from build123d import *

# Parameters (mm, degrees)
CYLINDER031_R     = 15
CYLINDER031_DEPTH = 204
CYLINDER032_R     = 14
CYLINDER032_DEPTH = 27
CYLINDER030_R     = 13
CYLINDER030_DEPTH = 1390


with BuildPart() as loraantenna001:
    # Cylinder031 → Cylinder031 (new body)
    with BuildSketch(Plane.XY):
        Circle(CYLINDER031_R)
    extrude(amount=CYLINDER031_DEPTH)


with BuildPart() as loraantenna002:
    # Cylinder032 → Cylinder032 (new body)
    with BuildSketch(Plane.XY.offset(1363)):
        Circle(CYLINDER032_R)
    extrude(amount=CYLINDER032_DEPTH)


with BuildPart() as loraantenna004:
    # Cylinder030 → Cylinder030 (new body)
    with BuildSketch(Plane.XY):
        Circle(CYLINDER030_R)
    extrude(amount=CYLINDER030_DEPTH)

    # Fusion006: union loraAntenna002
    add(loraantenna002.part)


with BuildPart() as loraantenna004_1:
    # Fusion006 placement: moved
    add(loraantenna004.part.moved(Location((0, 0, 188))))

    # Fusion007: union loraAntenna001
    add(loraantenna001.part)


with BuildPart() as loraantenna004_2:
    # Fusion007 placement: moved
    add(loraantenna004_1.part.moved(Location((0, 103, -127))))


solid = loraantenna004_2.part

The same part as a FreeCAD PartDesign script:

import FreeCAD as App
import Part
import Sketcher
Q = App.Units.Quantity

doc = App.newDocument("Part")
body = doc.addObject("PartDesign::Body", "Body")

sketch1 = body.newObject("Sketcher::SketchObject", "Sketch")
sketch1.AttachmentSupport = (doc.getObject("XY_Plane"), [""])
sketch1.MapMode = "FlatFace"
sketch1.addGeometry(Part.Circle(App.Vector(0, 0, 0), App.Vector(0, 0, 1), 15), False)
sketch1.addConstraint([
    Sketcher.Constraint("Coincident", 0, 3, -1, 1),
    Sketcher.Constraint("Diameter", 0, Q("30 mm")),
])
pad1 = body.newObject("PartDesign::Pad", "Pad")
pad1.Profile = sketch1
pad1.Length = 204
body2 = doc.addObject("PartDesign::Body", "Body001")

sketch2 = body2.newObject("Sketcher::SketchObject", "Sketch001")
sketch2.AttachmentSupport = (doc.getObject("XY_Plane001"), [""])
sketch2.MapMode = "FlatFace"
sketch2.AttachmentOffset = App.Placement(App.Vector(0, 0, 1363), App.Rotation())
sketch2.addGeometry(Part.Circle(App.Vector(0, 0, 0), App.Vector(0, 0, 1), 14), False)
sketch2.addConstraint([
    Sketcher.Constraint("Coincident", 0, 3, -1, 1),
    Sketcher.Constraint("Diameter", 0, Q("28 mm")),
])
pad2 = body2.newObject("PartDesign::Pad", "Pad001")
pad2.Profile = sketch2
pad2.Length = 27
body3 = doc.addObject("PartDesign::Body", "Body002")

sketch3 = body3.newObject("Sketcher::SketchObject", "Sketch002")
sketch3.AttachmentSupport = (doc.getObject("XY_Plane002"), [""])
sketch3.MapMode = "FlatFace"
sketch3.addGeometry(Part.Circle(App.Vector(0, 0, 0), App.Vector(0, 0, 1), 13), False)
sketch3.addConstraint([
    Sketcher.Constraint("Coincident", 0, 3, -1, 1),
    Sketcher.Constraint("Diameter", 0, Q("26 mm")),
])
pad3 = body3.newObject("PartDesign::Pad", "Pad002")
pad3.Profile = sketch3
pad3.Length = 1390
doc.recompute()

boolean = body3.newObject("PartDesign::Boolean", "Boolean")
boolean.Type = "Fuse"
boolean.addObjects([body2])
body4 = doc.addObject("PartDesign::Body", "Body003")
doc.recompute()

body3.Placement = App.Placement(App.Vector(0, 0, 188), App.Rotation(App.Vector(0, 0, 1), 0))
boolean2 = body4.newObject("PartDesign::Boolean", "Boolean001")
boolean2.Type = "Fuse"
boolean2.addObjects([body3])
doc.recompute()

boolean3 = body4.newObject("PartDesign::Boolean", "Boolean002")
boolean3.Type = "Fuse"
boolean3.addObjects([body])
body5 = doc.addObject("PartDesign::Body", "Body004")
doc.recompute()

body4.Placement = App.Placement(App.Vector(0, 103, -127), App.Rotation(App.Vector(0, 0, 1), 0))
boolean4 = body5.newObject("PartDesign::Boolean", "Boolean003")
boolean4.Type = "Fuse"
boolean4.addObjects([body4])

doc.recompute()
